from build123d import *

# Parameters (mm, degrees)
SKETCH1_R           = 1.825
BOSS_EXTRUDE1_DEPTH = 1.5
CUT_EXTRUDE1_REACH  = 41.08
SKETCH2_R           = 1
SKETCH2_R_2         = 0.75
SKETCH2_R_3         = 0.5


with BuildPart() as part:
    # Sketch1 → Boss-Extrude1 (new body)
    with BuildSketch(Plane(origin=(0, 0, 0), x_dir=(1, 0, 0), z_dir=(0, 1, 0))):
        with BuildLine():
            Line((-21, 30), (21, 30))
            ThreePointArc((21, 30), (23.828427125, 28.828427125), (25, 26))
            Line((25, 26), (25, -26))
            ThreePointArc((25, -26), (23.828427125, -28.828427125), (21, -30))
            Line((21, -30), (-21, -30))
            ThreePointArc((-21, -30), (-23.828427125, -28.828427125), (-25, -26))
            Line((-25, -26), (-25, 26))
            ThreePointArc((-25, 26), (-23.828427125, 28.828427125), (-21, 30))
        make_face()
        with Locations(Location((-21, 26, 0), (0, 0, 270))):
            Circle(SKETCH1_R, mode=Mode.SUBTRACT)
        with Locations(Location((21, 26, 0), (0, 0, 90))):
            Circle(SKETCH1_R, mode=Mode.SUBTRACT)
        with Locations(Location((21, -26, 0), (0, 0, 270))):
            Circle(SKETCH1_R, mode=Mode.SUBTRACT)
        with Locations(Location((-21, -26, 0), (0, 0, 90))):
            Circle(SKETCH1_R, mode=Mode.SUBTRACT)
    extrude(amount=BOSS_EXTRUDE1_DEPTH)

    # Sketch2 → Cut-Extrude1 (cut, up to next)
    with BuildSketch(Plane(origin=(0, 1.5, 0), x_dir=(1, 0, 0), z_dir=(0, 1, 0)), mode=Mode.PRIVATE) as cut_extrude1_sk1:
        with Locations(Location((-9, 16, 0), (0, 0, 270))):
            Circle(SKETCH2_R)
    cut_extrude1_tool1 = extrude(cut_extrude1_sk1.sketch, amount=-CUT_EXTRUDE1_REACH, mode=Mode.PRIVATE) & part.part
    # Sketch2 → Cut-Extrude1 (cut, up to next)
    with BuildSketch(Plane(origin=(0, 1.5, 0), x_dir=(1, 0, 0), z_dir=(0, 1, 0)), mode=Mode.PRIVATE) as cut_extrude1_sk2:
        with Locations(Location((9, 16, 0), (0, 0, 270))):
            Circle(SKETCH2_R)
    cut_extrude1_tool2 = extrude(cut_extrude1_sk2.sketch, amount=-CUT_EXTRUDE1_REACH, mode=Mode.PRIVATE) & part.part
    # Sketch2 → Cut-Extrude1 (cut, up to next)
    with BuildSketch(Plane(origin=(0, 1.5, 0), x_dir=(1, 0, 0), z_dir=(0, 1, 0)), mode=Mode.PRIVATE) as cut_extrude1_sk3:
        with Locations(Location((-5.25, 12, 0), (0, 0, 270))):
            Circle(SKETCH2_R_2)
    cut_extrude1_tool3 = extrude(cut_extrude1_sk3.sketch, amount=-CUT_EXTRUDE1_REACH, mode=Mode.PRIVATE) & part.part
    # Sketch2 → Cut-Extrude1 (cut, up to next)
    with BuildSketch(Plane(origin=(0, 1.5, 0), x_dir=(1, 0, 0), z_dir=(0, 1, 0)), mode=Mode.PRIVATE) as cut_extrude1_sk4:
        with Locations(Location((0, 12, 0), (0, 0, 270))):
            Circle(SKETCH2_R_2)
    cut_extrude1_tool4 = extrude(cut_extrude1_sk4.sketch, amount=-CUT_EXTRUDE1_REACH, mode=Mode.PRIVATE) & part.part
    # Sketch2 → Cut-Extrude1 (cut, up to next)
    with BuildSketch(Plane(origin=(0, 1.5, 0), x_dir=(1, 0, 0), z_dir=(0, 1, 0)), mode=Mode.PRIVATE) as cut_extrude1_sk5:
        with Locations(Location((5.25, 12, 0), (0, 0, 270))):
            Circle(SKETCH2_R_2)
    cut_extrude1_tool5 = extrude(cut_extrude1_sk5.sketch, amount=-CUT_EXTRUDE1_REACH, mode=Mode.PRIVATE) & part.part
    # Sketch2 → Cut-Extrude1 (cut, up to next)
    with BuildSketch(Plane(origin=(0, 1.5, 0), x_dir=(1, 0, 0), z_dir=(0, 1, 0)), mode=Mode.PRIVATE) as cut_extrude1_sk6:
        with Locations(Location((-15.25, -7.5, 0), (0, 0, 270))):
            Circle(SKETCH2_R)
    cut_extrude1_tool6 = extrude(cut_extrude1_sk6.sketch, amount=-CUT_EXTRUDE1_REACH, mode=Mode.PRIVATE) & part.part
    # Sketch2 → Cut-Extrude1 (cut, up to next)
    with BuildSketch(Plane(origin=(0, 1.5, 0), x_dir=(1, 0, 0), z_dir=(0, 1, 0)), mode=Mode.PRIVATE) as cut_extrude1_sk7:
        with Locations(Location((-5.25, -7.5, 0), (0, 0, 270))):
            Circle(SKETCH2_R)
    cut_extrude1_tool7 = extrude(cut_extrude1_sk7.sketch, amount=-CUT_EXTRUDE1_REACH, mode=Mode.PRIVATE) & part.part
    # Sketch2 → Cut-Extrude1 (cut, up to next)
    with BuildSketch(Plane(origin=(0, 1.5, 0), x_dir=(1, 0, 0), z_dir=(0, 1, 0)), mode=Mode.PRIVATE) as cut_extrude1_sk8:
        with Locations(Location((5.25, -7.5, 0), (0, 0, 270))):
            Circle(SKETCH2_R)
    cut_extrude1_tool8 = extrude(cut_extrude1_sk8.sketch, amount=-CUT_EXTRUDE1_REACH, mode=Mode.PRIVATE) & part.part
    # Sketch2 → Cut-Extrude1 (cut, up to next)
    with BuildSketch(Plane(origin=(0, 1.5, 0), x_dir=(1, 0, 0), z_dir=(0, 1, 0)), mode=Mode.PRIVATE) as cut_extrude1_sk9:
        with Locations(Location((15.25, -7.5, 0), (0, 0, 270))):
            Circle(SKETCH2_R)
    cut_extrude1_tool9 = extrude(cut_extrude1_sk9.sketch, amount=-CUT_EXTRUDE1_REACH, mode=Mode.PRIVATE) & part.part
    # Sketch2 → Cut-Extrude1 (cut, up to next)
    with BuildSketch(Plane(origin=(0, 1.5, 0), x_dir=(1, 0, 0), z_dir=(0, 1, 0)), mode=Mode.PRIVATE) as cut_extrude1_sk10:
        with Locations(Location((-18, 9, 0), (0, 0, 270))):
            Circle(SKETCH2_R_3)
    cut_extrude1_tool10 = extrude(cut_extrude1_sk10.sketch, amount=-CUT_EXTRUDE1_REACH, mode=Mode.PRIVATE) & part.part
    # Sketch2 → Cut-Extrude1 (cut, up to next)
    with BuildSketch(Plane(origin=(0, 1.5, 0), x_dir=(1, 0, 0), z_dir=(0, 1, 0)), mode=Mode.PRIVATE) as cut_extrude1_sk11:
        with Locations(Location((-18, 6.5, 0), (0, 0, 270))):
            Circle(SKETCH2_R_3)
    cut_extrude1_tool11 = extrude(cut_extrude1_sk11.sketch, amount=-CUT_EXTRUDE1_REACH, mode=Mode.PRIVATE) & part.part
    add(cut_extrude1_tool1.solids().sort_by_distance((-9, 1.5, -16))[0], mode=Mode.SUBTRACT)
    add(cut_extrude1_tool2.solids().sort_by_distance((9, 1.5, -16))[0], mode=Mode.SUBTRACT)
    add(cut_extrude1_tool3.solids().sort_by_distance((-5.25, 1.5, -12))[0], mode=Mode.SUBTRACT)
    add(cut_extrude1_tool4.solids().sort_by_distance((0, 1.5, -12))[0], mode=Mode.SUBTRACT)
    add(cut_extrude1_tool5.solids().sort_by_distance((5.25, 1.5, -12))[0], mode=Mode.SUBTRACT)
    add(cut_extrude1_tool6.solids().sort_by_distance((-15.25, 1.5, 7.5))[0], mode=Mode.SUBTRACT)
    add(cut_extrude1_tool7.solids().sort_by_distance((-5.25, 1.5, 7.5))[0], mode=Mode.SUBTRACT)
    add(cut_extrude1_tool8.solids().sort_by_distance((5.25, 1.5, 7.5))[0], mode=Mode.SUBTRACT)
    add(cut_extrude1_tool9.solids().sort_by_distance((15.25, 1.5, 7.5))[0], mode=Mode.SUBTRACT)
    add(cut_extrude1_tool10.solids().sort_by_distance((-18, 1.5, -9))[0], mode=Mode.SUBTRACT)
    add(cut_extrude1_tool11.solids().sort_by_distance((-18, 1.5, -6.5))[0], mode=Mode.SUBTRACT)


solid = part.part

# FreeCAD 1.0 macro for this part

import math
import FreeCAD as App
import Part
import Sketcher
from FreeCAD import Vector

doc = App.newDocument("Part")
body = doc.addObject("PartDesign::Body", "Body")

sketch1 = doc.addObject("Sketcher::SketchObject", "Sketch")
body.addObject(sketch1)
sketch1.AttachmentSupport = (doc.XZ_Plane, [""])
sketch1.MapMode = "FlatFace"
sketch1.addGeometry(Part.LineSegment(Vector(21, -30, 0), Vector(-21, -30, 0)), False)
sketch1.addGeometry(Part.ArcOfCircle(Part.Circle(Vector(-21, -26, 0), Vector(0, 0, 1), 4), math.radians(180), math.radians(270)), False)
sketch1.addGeometry(Part.LineSegment(Vector(-25, -26, 0), Vector(-25, 26, 0)), False)
sketch1.addGeometry(Part.ArcOfCircle(Part.Circle(Vector(-21, 26, 0), Vector(0, 0, 1), 4), math.radians(90), math.radians(180)), False)
sketch1.addGeometry(Part.LineSegment(Vector(-21, 30, 0), Vector(21, 30, 0)), False)
sketch1.addGeometry(Part.ArcOfCircle(Part.Circle(Vector(21, 26, 0), Vector(0, 0, 1), 4), math.radians(0), math.radians(90)), False)
sketch1.addGeometry(Part.LineSegment(Vector(25, 26, 0), Vector(25, -26, 0)), False)
sketch1.addGeometry(Part.ArcOfCircle(Part.Circle(Vector(21, -26, 0), Vector(0, 0, 1), 4), math.radians(-90), math.radians(0)), False)
sketch1.addGeometry(Part.Circle(Vector(21, 26, 0), Vector(0, 0, 1), 1.8), False)
sketch1.addGeometry(Part.Circle(Vector(-21, 26, 0), Vector(0, 0, 1), 1.8), False)
sketch1.addGeometry(Part.Circle(Vector(21, -26, 0), Vector(0, 0, 1), 1.8), False)
sketch1.addGeometry(Part.Circle(Vector(-21, -26, 0), Vector(0, 0, 1), 1.8), False)
sketch1.addConstraint(Sketcher.Constraint("Tangent", 0, 2, 1, 2))
sketch1.addConstraint(Sketcher.Constraint("Tangent", 1, 1, 2, 1))
sketch1.addConstraint(Sketcher.Constraint("Tangent", 2, 2, 3, 2))
sketch1.addConstraint(Sketcher.Constraint("Tangent", 3, 1, 4, 1))
sketch1.addConstraint(Sketcher.Constraint("Tangent", 4, 2, 5, 2))
sketch1.addConstraint(Sketcher.Constraint("Tangent", 5, 1, 6, 1))
sketch1.addConstraint(Sketcher.Constraint("Tangent", 6, 2, 7, 2))
sketch1.addConstraint(Sketcher.Constraint("Tangent", 7, 1, 0, 1))
sketch1.addConstraint(Sketcher.Constraint("Horizontal", 0))
sketch1.addConstraint(Sketcher.Constraint("Vertical", 2))
sketch1.addConstraint(Sketcher.Constraint("Horizontal", 4))
sketch1.addConstraint(Sketcher.Constraint("Vertical", 6))
sketch1.addConstraint(Sketcher.Constraint("Coincident", 8, 3, 5, 3))
sketch1.addConstraint(Sketcher.Constraint("Coincident", 9, 3, 3, 3))
sketch1.addConstraint(Sketcher.Constraint("Coincident", 10, 3, 7, 3))
sketch1.addConstraint(Sketcher.Constraint("Coincident", 11, 3, 1, 3))
sketch1.addConstraint(Sketcher.Constraint("Equal", 1, 3))
sketch1.addConstraint(Sketcher.Constraint("Equal", 3, 5))
sketch1.addConstraint(Sketcher.Constraint("Equal", 5, 7))
sketch1.addConstraint(Sketcher.Constraint("Equal", 8, 9))
sketch1.addConstraint(Sketcher.Constraint("Equal", 9, 10))
sketch1.addConstraint(Sketcher.Constraint("Equal", 10, 11))
sketch1.addConstraint(Sketcher.Constraint("Symmetric", 1, 3, 5, 3, -1, 1))
sketch1.addConstraint(Sketcher.Constraint("Radius", 1, 4.0))
sketch1.addConstraint(Sketcher.Constraint("Diameter", 8, 3.65))
sketch1.addConstraint(Sketcher.Constraint("DistanceX", 0, 2, 0, 1, 42.0))
sketch1.addConstraint(Sketcher.Constraint("DistanceY", 2, 1, 2, 2, 52.0))
pad1 = doc.addObject("PartDesign::Pad", "Pad")
body.addObject(pad1)
pad1.Profile = sketch1
pad1.Length = 1.5
pad1.Reversed = True

sketch2 = doc.addObject("Sketcher::SketchObject", "Sketch001")
body.addObject(sketch2)
sketch2.AttachmentSupport = (doc.XZ_Plane, [""])
sketch2.MapMode = "FlatFace"
sketch2.AttachmentOffset = App.Placement(Vector(0, 0, -1.5), App.Rotation())
sketch2.addGeometry(Part.Circle(Vector(-9, -16, 0), Vector(0, 0, 1), 1), False)
sketch2.addConstraint(Sketcher.Constraint("Diameter", 0, 2.0))
sketch2.addConstraint(Sketcher.Constraint("DistanceX", 0, 3, -1, 1, 9.0))
sketch2.addConstraint(Sketcher.Constraint("DistanceY", 0, 3, -1, 1, 16.0))
pocket1 = doc.addObject("PartDesign::Pocket", "Pocket")
body.addObject(pocket1)
pocket1.Profile = sketch2
pocket1.Type = "UpToFirst"
pocket1.Reversed = True

sketch3 = doc.addObject("Sketcher::SketchObject", "Sketch002")
body.addObject(sketch3)
sketch3.AttachmentSupport = (doc.XZ_Plane, [""])
sketch3.MapMode = "FlatFace"
sketch3.AttachmentOffset = App.Placement(Vector(0, 0, -1.5), App.Rotation())
sketch3.addGeometry(Part.Circle(Vector(9, -16, 0), Vector(0, 0, 1), 1), False)
sketch3.addConstraint(Sketcher.Constraint("Diameter", 0, 2.0))
sketch3.addConstraint(Sketcher.Constraint("DistanceX", -1, 1, 0, 3, 9.0))
sketch3.addConstraint(Sketcher.Constraint("DistanceY", 0, 3, -1, 1, 16.0))
pocket2 = doc.addObject("PartDesign::Pocket", "Pocket001")
body.addObject(pocket2)
pocket2.Profile = sketch3
pocket2.Type = "UpToFirst"
pocket2.Reversed = True

sketch4 = doc.addObject("Sketcher::SketchObject", "Sketch003")
body.addObject(sketch4)
sketch4.AttachmentSupport = (doc.XZ_Plane, [""])
sketch4.MapMode = "FlatFace"
sketch4.AttachmentOffset = App.Placement(Vector(0, 0, -1.5), App.Rotation())
sketch4.addGeometry(Part.Circle(Vector(-5.2, -12, 0), Vector(0, 0, 1), 0.8), False)
sketch4.addConstraint(Sketcher.Constraint("Diameter", 0, 1.5))
sketch4.addConstraint(Sketcher.Constraint("DistanceY", 0, 3, -1, 1, 12.0))
sketch4.addConstraint(Sketcher.Constraint("DistanceX", 0, 3, -1, 1, 5.25))
pocket3 = doc.addObject("PartDesign::Pocket", "Pocket002")
body.addObject(pocket3)
pocket3.Profile = sketch4
pocket3.Type = "UpToFirst"
pocket3.Reversed = True

sketch5 = doc.addObject("Sketcher::SketchObject", "Sketch004")
body.addObject(sketch5)
sketch5.AttachmentSupport = (doc.XZ_Plane, [""])
sketch5.MapMode = "FlatFace"
sketch5.AttachmentOffset = App.Placement(Vector(0, 0, -1.5), App.Rotation())
sketch5.addGeometry(Part.Circle(Vector(0, -12, 0), Vector(0, 0, 1), 0.8), False)
sketch5.addConstraint(Sketcher.Constraint("PointOnObject", 0, 3, -2))
sketch5.addConstraint(Sketcher.Constraint("Diameter", 0, 1.5))
sketch5.addConstraint(Sketcher.Constraint("DistanceY", 0, 3, -1, 1, 12.0))
pocket4 = doc.addObject("PartDesign::Pocket", "Pocket003")
body.addObject(pocket4)
pocket4.Profile = sketch5
pocket4.Type = "UpToFirst"
pocket4.Reversed = True

sketch6 = doc.addObject("Sketcher::SketchObject", "Sketch005")
body.addObject(sketch6)
sketch6.AttachmentSupport = (doc.XZ_Plane, [""])
sketch6.MapMode = "FlatFace"
sketch6.AttachmentOffset = App.Placement(Vector(0, 0, -1.5), App.Rotation())
sketch6.addGeometry(Part.Circle(Vector(5.2, -12, 0), Vector(0, 0, 1), 0.8), False)
sketch6.addConstraint(Sketcher.Constraint("Diameter", 0, 1.5))
sketch6.addConstraint(Sketcher.Constraint("DistanceY", 0, 3, -1, 1, 12.0))
sketch6.addConstraint(Sketcher.Constraint("DistanceX", -1, 1, 0, 3, 5.25))
pocket5 = doc.addObject("PartDesign::Pocket", "Pocket004")
body.addObject(pocket5)
pocket5.Profile = sketch6
pocket5.Type = "UpToFirst"
pocket5.Reversed = True

sketch7 = doc.addObject("Sketcher::SketchObject", "Sketch006")
body.addObject(sketch7)
sketch7.AttachmentSupport = (doc.XZ_Plane, [""])
sketch7.MapMode = "FlatFace"
sketch7.AttachmentOffset = App.Placement(Vector(0, 0, -1.5), App.Rotation())
sketch7.addGeometry(Part.Circle(Vector(-15.2, 7.5, 0), Vector(0, 0, 1), 1), False)
sketch7.addConstraint(Sketcher.Constraint("Diameter", 0, 2.0))
sketch7.addConstraint(Sketcher.Constraint("DistanceY", -1, 1, 0, 3, 7.5))
sketch7.addConstraint(Sketcher.Constraint("DistanceX", 0, 3, -1, 1, 15.25))
pocket6 = doc.addObject("PartDesign::Pocket", "Pocket005")
body.addObject(pocket6)
pocket6.Profile = sketch7
pocket6.Type = "UpToFirst"
pocket6.Reversed = True

sketch8 = doc.addObject("Sketcher::SketchObject", "Sketch007")
body.addObject(sketch8)
sketch8.AttachmentSupport = (doc.XZ_Plane, [""])
sketch8.MapMode = "FlatFace"
sketch8.AttachmentOffset = App.Placement(Vector(0, 0, -1.5), App.Rotation())
sketch8.addGeometry(Part.Circle(Vector(-5.2, 7.5, 0), Vector(0, 0, 1), 1), False)
sketch8.addConstraint(Sketcher.Constraint("Diameter", 0, 2.0))
sketch8.addConstraint(Sketcher.Constraint("DistanceY", -1, 1, 0, 3, 7.5))
sketch8.addConstraint(Sketcher.Constraint("DistanceX", 0, 3, -1, 1, 5.25))
pocket7 = doc.addObject("PartDesign::Pocket", "Pocket006")
body.addObject(pocket7)
pocket7.Profile = sketch8
pocket7.Type = "UpToFirst"
pocket7.Reversed = True

sketch9 = doc.addObject("Sketcher::SketchObject", "Sketch008")
body.addObject(sketch9)
sketch9.AttachmentSupport = (doc.XZ_Plane, [""])
sketch9.MapMode = "FlatFace"
sketch9.AttachmentOffset = App.Placement(Vector(0, 0, -1.5), App.Rotation())
sketch9.addGeometry(Part.Circle(Vector(5.2, 7.5, 0), Vector(0, 0, 1), 1), False)
sketch9.addConstraint(Sketcher.Constraint("Diameter", 0, 2.0))
sketch9.addConstraint(Sketcher.Constraint("DistanceY", -1, 1, 0, 3, 7.5))
sketch9.addConstraint(Sketcher.Constraint("DistanceX", -1, 1, 0, 3, 5.25))
pocket8 = doc.addObject("PartDesign::Pocket", "Pocket007")
body.addObject(pocket8)
pocket8.Profile = sketch9
pocket8.Type = "UpToFirst"
pocket8.Reversed = True

sketch10 = doc.addObject("Sketcher::SketchObject", "Sketch009")
body.addObject(sketch10)
sketch10.AttachmentSupport = (doc.XZ_Plane, [""])
sketch10.MapMode = "FlatFace"
sketch10.AttachmentOffset = App.Placement(Vector(0, 0, -1.5), App.Rotation())
sketch10.addGeometry(Part.Circle(Vector(15.2, 7.5, 0), Vector(0, 0, 1), 1), False)
sketch10.addConstraint(Sketcher.Constraint("Diameter", 0, 2.0))
sketch10.addConstraint(Sketcher.Constraint("DistanceY", -1, 1, 0, 3, 7.5))
sketch10.addConstraint(Sketcher.Constraint("DistanceX", -1, 1, 0, 3, 15.25))
pocket9 = doc.addObject("PartDesign::Pocket", "Pocket008")
body.addObject(pocket9)
pocket9.Profile = sketch10
pocket9.Type = "UpToFirst"
pocket9.Reversed = True

sketch11 = doc.addObject("Sketcher::SketchObject", "Sketch010")
body.addObject(sketch11)
sketch11.AttachmentSupport = (doc.XZ_Plane, [""])
sketch11.MapMode = "FlatFace"
sketch11.AttachmentOffset = App.Placement(Vector(0, 0, -1.5), App.Rotation())
sketch11.addGeometry(Part.Circle(Vector(-18, -9, 0), Vector(0, 0, 1), 0.5), False)
sketch11.addConstraint(Sketcher.Constraint("Diameter", 0, 1.0))
sketch11.addConstraint(Sketcher.Constraint("DistanceX", 0, 3, -1, 1, 18.0))
sketch11.addConstraint(Sketcher.Constraint("DistanceY", 0, 3, -1, 1, 9.0))
pocket10 = doc.addObject("PartDesign::Pocket", "Pocket009")
body.addObject(pocket10)
pocket10.Profile = sketch11
pocket10.Type = "UpToFirst"
pocket10.Reversed = True

sketch12 = doc.addObject("Sketcher::SketchObject", "Sketch011")
body.addObject(sketch12)
sketch12.AttachmentSupport = (doc.XZ_Plane, [""])
sketch12.MapMode = "FlatFace"
sketch12.AttachmentOffset = App.Placement(Vector(0, 0, -1.5), App.Rotation())
sketch12.addGeometry(Part.Circle(Vector(-18, -6.5, 0), Vector(0, 0, 1), 0.5), False)
sketch12.addConstraint(Sketcher.Constraint("Diameter", 0, 1.0))
sketch12.addConstraint(Sketcher.Constraint("DistanceX", 0, 3, -1, 1, 18.0))
sketch12.addConstraint(Sketcher.Constraint("DistanceY", 0, 3, -1, 1, 6.5))
pocket11 = doc.addObject("PartDesign::Pocket", "Pocket010")
body.addObject(pocket11)
pocket11.Profile = sketch12
pocket11.Type = "UpToFirst"
pocket11.Reversed = True

doc.recompute()
